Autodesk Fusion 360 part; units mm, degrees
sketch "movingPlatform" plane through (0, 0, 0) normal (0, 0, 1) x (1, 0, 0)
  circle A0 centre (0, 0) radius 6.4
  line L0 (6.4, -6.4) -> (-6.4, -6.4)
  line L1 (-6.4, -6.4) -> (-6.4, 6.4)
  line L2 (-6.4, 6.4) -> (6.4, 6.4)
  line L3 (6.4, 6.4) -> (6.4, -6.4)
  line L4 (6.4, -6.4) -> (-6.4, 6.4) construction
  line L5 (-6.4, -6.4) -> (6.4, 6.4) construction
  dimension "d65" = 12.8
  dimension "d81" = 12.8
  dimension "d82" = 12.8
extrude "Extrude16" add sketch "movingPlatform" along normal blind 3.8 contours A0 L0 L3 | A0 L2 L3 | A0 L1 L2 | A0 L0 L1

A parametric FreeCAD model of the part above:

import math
import FreeCAD as App
import Part
import Sketcher

V = App.Vector
Q = App.Units.Quantity

doc = App.newDocument("Part")
body = doc.addObject("PartDesign::Body", "Body")
body.AllowCompound = True

sketch1 = body.newObject("Sketcher::SketchObject", "Sketch")
sketch1.AttachmentSupport = (doc.getObject("XY_Plane"), [""])
sketch1.MapMode = "FlatFace"
sketch1.addGeometry([
    Part.LineSegment(V(6.4, -6.4, 0), V(6.4, 0, 0)),
    Part.ArcOfCircle(Part.Circle(V(0, 0, 0), V(0, 0, 1), 6.4), math.radians(-90), math.radians(0)),
    Part.LineSegment(V(0, -6.4, 0), V(6.4, -6.4, 0)),
    Part.ArcOfCircle(Part.Circle(V(0, 0, 0), V(0, 0, 1), 6.4), math.radians(0), math.radians(90)),
    Part.LineSegment(V(6.4, 0, 0), V(6.4, 6.4, 0)),
    Part.LineSegment(V(6.4, 6.4, 0), V(0, 6.4, 0)),
    Part.ArcOfCircle(Part.Circle(V(0, 0, 0), V(0, 0, 1), 6.4), math.radians(90), math.radians(180)),
    Part.LineSegment(V(0, 6.4, 0), V(-6.4, 6.4, 0)),
    Part.LineSegment(V(-6.4, 6.4, 0), V(-6.4, 0, 0)),
    Part.LineSegment(V(-6.4, -6.4, 0), V(0, -6.4, 0)),
    Part.ArcOfCircle(Part.Circle(V(0, 0, 0), V(0, 0, 1), 6.4), math.radians(180), math.radians(270)),
    Part.LineSegment(V(-6.4, 0, 0), V(-6.4, -6.4, 0)),
], False)
sketch1.addConstraint([
    Sketcher.Constraint("Tangent", 0, 2, 1, 2),
    Sketcher.Constraint("Tangent", 1, 1, 2, 1),
    Sketcher.Constraint("Coincident", 2, 2, 0, 1),
    Sketcher.Constraint("Tangent", 3, 1, 4, 1),
    Sketcher.Constraint("Coincident", 4, 2, 5, 1),
    Sketcher.Constraint("Tangent", 5, 2, 3, 2),
    Sketcher.Constraint("Tangent", 6, 1, 7, 1),
    Sketcher.Constraint("Coincident", 7, 2, 8, 1),
    Sketcher.Constraint("Tangent", 8, 2, 6, 2),
    Sketcher.Constraint("Tangent", 9, 2, 10, 2),
    Sketcher.Constraint("Tangent", 10, 1, 11, 1),
    Sketcher.Constraint("Coincident", 11, 2, 9, 1),
    Sketcher.Constraint("Vertical", 0),
    Sketcher.Constraint("Horizontal", 2),
    Sketcher.Constraint("Vertical", 4),
    Sketcher.Constraint("Horizontal", 5),
    Sketcher.Constraint("Horizontal", 7),
    Sketcher.Constraint("Vertical", 8),
    Sketcher.Constraint("Horizontal", 9),
    Sketcher.Constraint("Vertical", 11),
    Sketcher.Constraint("Coincident", 1, 3, -1, 1),
    Sketcher.Constraint("Coincident", 3, 3, -1, 1),
    Sketcher.Constraint("Coincident", 6, 3, -1, 1),
    Sketcher.Constraint("Coincident", 10, 3, -1, 1),
    Sketcher.Constraint("Equal", 1, 3),
    Sketcher.Constraint("Equal", 3, 6),
    Sketcher.Constraint("Equal", 6, 10),
    Sketcher.Constraint("Radius", 1, Q("6.4 mm")),
])
pad1 = body.newObject("PartDesign::Pad", "Pad")
pad1.Profile = sketch1
pad1.Length = 3.8

doc.recompute()
